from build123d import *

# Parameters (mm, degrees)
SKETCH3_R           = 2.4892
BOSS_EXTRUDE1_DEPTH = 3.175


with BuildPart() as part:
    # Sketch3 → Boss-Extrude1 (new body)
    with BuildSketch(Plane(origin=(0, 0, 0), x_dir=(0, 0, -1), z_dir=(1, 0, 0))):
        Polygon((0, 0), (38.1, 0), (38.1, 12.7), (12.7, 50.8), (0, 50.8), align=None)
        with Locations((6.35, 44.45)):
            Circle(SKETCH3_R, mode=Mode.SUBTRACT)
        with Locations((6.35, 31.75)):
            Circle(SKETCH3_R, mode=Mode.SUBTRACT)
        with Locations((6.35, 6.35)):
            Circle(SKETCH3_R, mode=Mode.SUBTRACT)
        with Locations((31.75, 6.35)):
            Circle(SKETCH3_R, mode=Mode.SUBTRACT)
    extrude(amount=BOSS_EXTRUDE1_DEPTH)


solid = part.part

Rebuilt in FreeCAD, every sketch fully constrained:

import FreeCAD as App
import Part
import Sketcher

V = App.Vector
Q = App.Units.Quantity

doc = App.newDocument("Part")
body = doc.addObject("PartDesign::Body", "Body")

sketch1 = body.newObject("Sketcher::SketchObject", "Sketch")
sketch1.AttachmentSupport = (doc.getObject("YZ_Plane"), [""])
sketch1.MapMode = "FlatFace"
sketch1.addGeometry([
    Part.LineSegment(V(0, 0, 0), V(0, -38.1, 0)),
    Part.LineSegment(V(0, -38.1, 0), V(12.7, -38.1, 0)),
    Part.LineSegment(V(12.7, -38.1, 0), V(50.8, -12.7, 0)),
    Part.LineSegment(V(50.8, -12.7, 0), V(50.8, 0, 0)),
    Part.LineSegment(V(50.8, 0, 0), V(0, 0, 0)),
    Part.Circle(V(6.3, -6.3, 0), V(0, 0, 1), 2.5),
    Part.Circle(V(6.3, -31.8, 0), V(0, 0, 1), 2.5),
    Part.Circle(V(31.8, -6.3, 0), V(0, 0, 1), 2.5),
    Part.Circle(V(44.5, -6.3, 0), V(0, 0, 1), 2.5),
], False)
sketch1.addConstraint([
    Sketcher.Constraint("Coincident", 0, 2, 1, 1),
    Sketcher.Constraint("Coincident", 1, 2, 2, 1),
    Sketcher.Constraint("Coincident", 2, 2, 3, 1),
    Sketcher.Constraint("Coincident", 3, 2, 4, 1),
    Sketcher.Constraint("Coincident", 4, 2, 0, 1),
    Sketcher.Constraint("Vertical", 0),
    Sketcher.Constraint("Horizontal", 1),
    Sketcher.Constraint("Vertical", 3),
    Sketcher.Constraint("Horizontal", 4),
    Sketcher.Constraint("Coincident", 4, 2, -1, 1),
    Sketcher.Constraint("Equal", 5, 6),
    Sketcher.Constraint("Equal", 6, 7),
    Sketcher.Constraint("Equal", 7, 8),
    Sketcher.Constraint("Horizontal", 5, 3, 7, 3),
    Sketcher.Constraint("Horizontal", 7, 3, 8, 3),
    Sketcher.Constraint("Vertical", 5, 3, 6, 3),
    Sketcher.Constraint("Equal", 1, 3),
    Sketcher.Constraint("DistanceX", 4, 2, 4, 1, Q("2 in")),
    Sketcher.Constraint("Diameter", 5, Q("0.196 in")),
    Sketcher.Constraint("DistanceX", 1, 1, 1, 2, Q("0.5 in")),
    Sketcher.Constraint("DistanceY", 0, 2, 0, 1, Q("1.5 in")),
    Sketcher.Constraint("DistanceY", 6, 3, 5, 3, Q("1 in")),
    Sketcher.Constraint("DistanceX", 5, 3, 7, 3, Q("1 in")),
    Sketcher.Constraint("DistanceX", 7, 3, 8, 3, Q("0.5 in")),
    Sketcher.Constraint("DistanceX", -1, 1, 5, 3, Q("0.25 in")),
    Sketcher.Constraint("DistanceY", 5, 3, -1, 1, Q("0.25 in")),
])
pad1 = body.newObject("PartDesign::Pad", "Pad")
pad1.Profile = sketch1
pad1.Length = Q("0.125 in")

doc.recompute()
